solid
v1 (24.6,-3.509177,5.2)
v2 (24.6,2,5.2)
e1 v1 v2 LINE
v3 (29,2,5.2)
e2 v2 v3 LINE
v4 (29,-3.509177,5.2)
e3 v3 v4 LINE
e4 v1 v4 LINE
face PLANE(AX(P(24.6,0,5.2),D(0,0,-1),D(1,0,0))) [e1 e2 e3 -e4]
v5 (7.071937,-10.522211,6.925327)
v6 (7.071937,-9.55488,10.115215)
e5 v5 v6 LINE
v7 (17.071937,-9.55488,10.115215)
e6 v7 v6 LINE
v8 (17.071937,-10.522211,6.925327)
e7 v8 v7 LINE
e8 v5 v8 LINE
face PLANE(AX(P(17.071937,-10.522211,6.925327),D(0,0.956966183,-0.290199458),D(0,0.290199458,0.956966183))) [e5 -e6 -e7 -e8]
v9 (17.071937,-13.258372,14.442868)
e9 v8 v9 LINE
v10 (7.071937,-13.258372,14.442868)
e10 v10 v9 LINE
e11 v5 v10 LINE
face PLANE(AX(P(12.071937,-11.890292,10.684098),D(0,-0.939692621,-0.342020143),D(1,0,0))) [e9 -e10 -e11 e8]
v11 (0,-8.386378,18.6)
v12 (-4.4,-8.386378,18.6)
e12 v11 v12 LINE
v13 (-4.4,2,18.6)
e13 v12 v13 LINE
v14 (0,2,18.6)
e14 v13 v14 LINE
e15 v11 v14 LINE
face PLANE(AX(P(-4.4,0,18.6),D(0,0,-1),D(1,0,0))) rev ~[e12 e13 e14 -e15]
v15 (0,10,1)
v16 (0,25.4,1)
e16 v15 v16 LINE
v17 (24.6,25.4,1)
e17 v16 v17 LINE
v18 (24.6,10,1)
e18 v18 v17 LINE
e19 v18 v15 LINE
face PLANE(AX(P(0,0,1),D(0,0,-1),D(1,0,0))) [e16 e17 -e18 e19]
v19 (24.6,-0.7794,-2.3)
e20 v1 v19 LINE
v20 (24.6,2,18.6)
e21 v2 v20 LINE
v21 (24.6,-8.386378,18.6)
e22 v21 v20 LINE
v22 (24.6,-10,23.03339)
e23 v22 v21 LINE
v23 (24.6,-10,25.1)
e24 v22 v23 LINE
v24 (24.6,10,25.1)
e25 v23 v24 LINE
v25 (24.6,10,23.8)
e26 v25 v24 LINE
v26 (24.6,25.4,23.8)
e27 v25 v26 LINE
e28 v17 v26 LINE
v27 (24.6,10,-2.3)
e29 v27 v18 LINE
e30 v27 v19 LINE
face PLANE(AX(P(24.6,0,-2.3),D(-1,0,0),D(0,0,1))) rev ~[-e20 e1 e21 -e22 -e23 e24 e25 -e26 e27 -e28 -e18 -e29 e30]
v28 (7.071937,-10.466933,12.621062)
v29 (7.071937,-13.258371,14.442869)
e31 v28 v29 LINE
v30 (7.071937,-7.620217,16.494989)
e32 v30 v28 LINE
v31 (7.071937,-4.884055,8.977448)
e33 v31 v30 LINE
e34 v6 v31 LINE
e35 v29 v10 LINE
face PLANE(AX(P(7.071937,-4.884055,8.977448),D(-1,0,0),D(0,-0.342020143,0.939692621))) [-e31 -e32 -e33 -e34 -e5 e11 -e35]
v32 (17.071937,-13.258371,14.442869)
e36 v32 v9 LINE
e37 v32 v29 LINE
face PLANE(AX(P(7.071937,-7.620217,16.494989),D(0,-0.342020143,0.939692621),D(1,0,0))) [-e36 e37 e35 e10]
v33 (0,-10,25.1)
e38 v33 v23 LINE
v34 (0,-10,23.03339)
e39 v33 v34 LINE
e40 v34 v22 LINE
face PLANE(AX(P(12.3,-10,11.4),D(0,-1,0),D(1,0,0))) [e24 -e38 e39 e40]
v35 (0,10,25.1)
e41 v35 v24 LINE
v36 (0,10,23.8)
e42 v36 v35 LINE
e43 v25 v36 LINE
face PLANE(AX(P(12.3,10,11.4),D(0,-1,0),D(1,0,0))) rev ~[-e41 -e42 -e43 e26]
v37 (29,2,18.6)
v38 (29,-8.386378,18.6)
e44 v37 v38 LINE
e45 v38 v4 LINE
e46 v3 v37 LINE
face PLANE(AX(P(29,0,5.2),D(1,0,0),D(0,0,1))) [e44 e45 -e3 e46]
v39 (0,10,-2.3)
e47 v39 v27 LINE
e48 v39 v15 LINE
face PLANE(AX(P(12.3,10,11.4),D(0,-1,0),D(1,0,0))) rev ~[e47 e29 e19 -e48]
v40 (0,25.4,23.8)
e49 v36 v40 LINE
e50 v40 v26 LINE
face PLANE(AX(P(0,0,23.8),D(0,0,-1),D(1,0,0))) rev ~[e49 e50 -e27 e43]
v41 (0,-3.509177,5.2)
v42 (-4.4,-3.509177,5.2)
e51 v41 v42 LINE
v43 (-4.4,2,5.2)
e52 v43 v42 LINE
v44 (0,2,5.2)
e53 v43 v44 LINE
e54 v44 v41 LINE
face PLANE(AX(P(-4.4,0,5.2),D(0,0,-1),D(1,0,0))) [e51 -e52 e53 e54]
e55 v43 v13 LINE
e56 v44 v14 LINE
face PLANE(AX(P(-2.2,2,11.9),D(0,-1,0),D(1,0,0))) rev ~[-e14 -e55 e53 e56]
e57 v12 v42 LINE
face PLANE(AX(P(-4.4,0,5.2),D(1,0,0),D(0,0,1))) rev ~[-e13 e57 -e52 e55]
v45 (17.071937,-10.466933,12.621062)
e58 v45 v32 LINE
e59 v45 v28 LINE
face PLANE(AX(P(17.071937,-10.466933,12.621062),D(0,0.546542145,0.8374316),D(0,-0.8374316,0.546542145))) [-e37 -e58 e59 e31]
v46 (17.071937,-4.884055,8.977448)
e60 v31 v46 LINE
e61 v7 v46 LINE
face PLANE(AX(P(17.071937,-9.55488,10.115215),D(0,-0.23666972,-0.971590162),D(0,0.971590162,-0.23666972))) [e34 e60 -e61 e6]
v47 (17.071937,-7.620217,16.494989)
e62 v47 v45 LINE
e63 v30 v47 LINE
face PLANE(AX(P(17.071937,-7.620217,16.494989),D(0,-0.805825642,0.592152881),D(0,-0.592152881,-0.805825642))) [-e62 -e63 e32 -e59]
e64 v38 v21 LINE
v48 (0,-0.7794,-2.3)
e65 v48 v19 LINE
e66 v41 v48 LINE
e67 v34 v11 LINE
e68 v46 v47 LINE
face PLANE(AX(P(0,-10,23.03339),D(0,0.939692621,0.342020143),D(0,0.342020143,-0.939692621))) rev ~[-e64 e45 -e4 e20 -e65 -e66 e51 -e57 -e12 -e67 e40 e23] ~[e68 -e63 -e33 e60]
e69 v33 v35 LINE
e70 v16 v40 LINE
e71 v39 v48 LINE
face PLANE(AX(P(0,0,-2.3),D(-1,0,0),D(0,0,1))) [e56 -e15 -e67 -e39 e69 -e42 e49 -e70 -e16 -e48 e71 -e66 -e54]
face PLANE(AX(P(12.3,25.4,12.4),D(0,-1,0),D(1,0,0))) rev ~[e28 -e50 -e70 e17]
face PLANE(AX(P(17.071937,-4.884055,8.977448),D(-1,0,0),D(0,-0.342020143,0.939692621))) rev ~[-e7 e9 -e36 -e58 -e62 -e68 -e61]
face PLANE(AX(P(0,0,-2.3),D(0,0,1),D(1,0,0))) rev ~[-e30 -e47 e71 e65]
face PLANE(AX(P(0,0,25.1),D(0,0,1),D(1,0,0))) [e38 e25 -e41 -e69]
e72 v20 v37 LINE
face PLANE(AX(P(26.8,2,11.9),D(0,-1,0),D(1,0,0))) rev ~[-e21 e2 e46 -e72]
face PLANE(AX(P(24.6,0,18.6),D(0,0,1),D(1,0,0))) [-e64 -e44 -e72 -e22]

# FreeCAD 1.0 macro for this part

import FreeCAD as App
import Part
import Sketcher

V = App.Vector
Q = App.Units.Quantity

doc = App.newDocument("Part")
body = doc.addObject("PartDesign::Body", "Body")

sketch1 = doc.addObject("Sketcher::SketchObject", "Sketch")
body.addObject(sketch1)
sketch1.AttachmentSupport = (doc.XZ_Plane, [""])
sketch1.MapMode = "FlatFace"
sketch1.addGeometry([
    Part.LineSegment(V(0, 24, 0), V(0, 1, 0)),
    Part.LineSegment(V(0, 1, 0), V(25, 1, 0)),
    Part.LineSegment(V(25, 1, 0), V(25, 24, 0)),
    Part.LineSegment(V(25, 24, 0), V(0, 24, 0)),
], False)
sketch1.addConstraint([
    Sketcher.Constraint("Coincident", 0, 2, 1, 1),
    Sketcher.Constraint("Coincident", 1, 2, 2, 1),
    Sketcher.Constraint("Coincident", 2, 2, 3, 1),
    Sketcher.Constraint("Coincident", 3, 2, 0, 1),
    Sketcher.Constraint("Vertical", 0),
    Sketcher.Constraint("Horizontal", 1),
    Sketcher.Constraint("Vertical", 2),
    Sketcher.Constraint("Horizontal", 3),
    Sketcher.Constraint("PointOnObject", 0, 2, -2),
    Sketcher.Constraint("DistanceX", 1, 1, 1, 2, 24.6),
    Sketcher.Constraint("DistanceY", 0, 2, 0, 1, 22.8),
    Sketcher.Constraint("DistanceY", -1, 1, 0, 2, 1.0),
])
pad1 = doc.addObject("PartDesign::Pad", "Pad")
body.addObject(pad1)
pad1.Profile = sketch1
pad1.Length = 25.4
pad1.Reversed = True

sketch2 = doc.addObject("Sketcher::SketchObject", "Sketch001")
body.addObject(sketch2)
sketch2.AttachmentSupport = (doc.XZ_Plane, [""])
sketch2.MapMode = "FlatFace"
sketch2.addGeometry([
    Part.LineSegment(V(0, 25, 0), V(0, -2, 0)),
    Part.LineSegment(V(0, -2, 0), V(25, -2, 0)),
    Part.LineSegment(V(25, -2, 0), V(25, 25, 0)),
    Part.LineSegment(V(25, 25, 0), V(0, 25, 0)),
], False)
sketch2.addConstraint([
    Sketcher.Constraint("Coincident", 0, 2, 1, 1),
    Sketcher.Constraint("Coincident", 1, 2, 2, 1),
    Sketcher.Constraint("Coincident", 2, 2, 3, 1),
    Sketcher.Constraint("Coincident", 3, 2, 0, 1),
    Sketcher.Constraint("Vertical", 0),
    Sketcher.Constraint("Horizontal", 1),
    Sketcher.Constraint("Vertical", 2),
    Sketcher.Constraint("Horizontal", 3),
    Sketcher.Constraint("PointOnObject", 0, 2, -2),
    Sketcher.Constraint("DistanceX", 1, 1, 1, 2, 24.6),
    Sketcher.Constraint("DistanceY", 0, 2, 0, 1, 27.4),
    Sketcher.Constraint("DistanceY", 0, 2, -1, 1, 2.3),
])
pad2 = doc.addObject("PartDesign::Pad", "Pad001")
body.addObject(pad2)
pad2.Profile = sketch2
pad2.Type = "TwoLengths"
pad2.Length = 10
pad2.Length2 = 10
pad2.Reversed = True

sketch3 = doc.addObject("Sketcher::SketchObject", "Sketch002")
body.addObject(sketch3)
sketch3.AttachmentSupport = (doc.XZ_Plane, [""])
sketch3.MapMode = "FlatFace"
sketch3.addGeometry([
    Part.LineSegment(V(-4.4, 18.6, 0), V(-4.4, 5.2, 0)),
    Part.LineSegment(V(-4.4, 5.2, 0), V(0, 5.2, 0)),
    Part.LineSegment(V(0, 5.2, 0), V(0, 18.6, 0)),
    Part.LineSegment(V(0, 18.6, 0), V(-4.4, 18.6, 0)),
], False)
sketch3.addConstraint([
    Sketcher.Constraint("Coincident", 0, 2, 1, 1),
    Sketcher.Constraint("Coincident", 1, 2, 2, 1),
    Sketcher.Constraint("Coincident", 2, 2, 3, 1),
    Sketcher.Constraint("Coincident", 3, 2, 0, 1),
    Sketcher.Constraint("Vertical", 0),
    Sketcher.Constraint("Horizontal", 1),
    Sketcher.Constraint("Vertical", 2),
    Sketcher.Constraint("Horizontal", 3),
    Sketcher.Constraint("PointOnObject", 1, 2, -2),
    Sketcher.Constraint("DistanceX", 1, 1, 1, 2, 4.4),
    Sketcher.Constraint("DistanceY", 0, 2, 0, 1, 13.4),
    Sketcher.Constraint("DistanceY", -1, 1, 0, 2, 5.2),
])
pad3 = doc.addObject("PartDesign::Pad", "Pad002")
body.addObject(pad3)
pad3.Profile = sketch3
pad3.Type = "TwoLengths"
pad3.Length = 10
pad3.Length2 = 2

sketch4 = doc.addObject("Sketcher::SketchObject", "Sketch003")
body.addObject(sketch4)
sketch4.AttachmentSupport = (doc.XZ_Plane, [""])
sketch4.MapMode = "FlatFace"
sketch4.addGeometry([
    Part.LineSegment(V(24.6, 18.6, 0), V(24.6, 5.2, 0)),
    Part.LineSegment(V(24.6, 5.2, 0), V(29, 5.2, 0)),
    Part.LineSegment(V(29, 5.2, 0), V(29, 18.6, 0)),
    Part.LineSegment(V(29, 18.6, 0), V(24.6, 18.6, 0)),
], False)
sketch4.addConstraint([
    Sketcher.Constraint("Coincident", 0, 2, 1, 1),
    Sketcher.Constraint("Coincident", 1, 2, 2, 1),
    Sketcher.Constraint("Coincident", 2, 2, 3, 1),
    Sketcher.Constraint("Coincident", 3, 2, 0, 1),
    Sketcher.Constraint("Vertical", 0),
    Sketcher.Constraint("Horizontal", 1),
    Sketcher.Constraint("Vertical", 2),
    Sketcher.Constraint("Horizontal", 3),
    Sketcher.Constraint("DistanceX", 1, 1, 1, 2, 4.4),
    Sketcher.Constraint("DistanceY", 0, 2, 0, 1, 13.4),
    Sketcher.Constraint("DistanceX", -1, 1, 1, 2, 29.0),
    Sketcher.Constraint("DistanceY", -1, 1, 0, 2, 5.2),
])
pad4 = doc.addObject("PartDesign::Pad", "Pad003")
body.addObject(pad4)
pad4.Profile = sketch4
pad4.Type = "TwoLengths"
pad4.Length = 10
pad4.Length2 = 2

sketch5 = doc.addObject("Sketcher::SketchObject", "Sketch004")
body.addObject(sketch5)
sketch5.AttachmentSupport = (doc.YZ_Plane, [""])
sketch5.MapMode = "FlatFace"
sketch5.addGeometry([
    Part.LineSegment(V(-10, -2, 0), V(-1, -2, 0)),
    Part.LineSegment(V(-1, -2, 0), V(-10, 23, 0)),
    Part.LineSegment(V(-10, 23, 0), V(-10, -2, 0)),
], False)
sketch5.addConstraint([
    Sketcher.Constraint("Coincident", 0, 2, 1, 1),
    Sketcher.Constraint("Coincident", 1, 2, 2, 1),
    Sketcher.Constraint("Coincident", 2, 2, 0, 1),
    Sketcher.Constraint("Horizontal", 0),
    Sketcher.Constraint("Vertical", 2),
    Sketcher.Constraint("Angle", 1, Q("110 deg")),
    Sketcher.Constraint("DistanceX", 1, 2, -1, 1, 10.0),
    Sketcher.Constraint("DistanceY", 0, 2, -1, 1, 2.3),
    Sketcher.Constraint("DistanceX", 0, 1, 0, 2, 9.2206),
])
pocket1 = doc.addObject("PartDesign::Pocket", "Pocket")
body.addObject(pocket1)
pocket1.Profile = sketch5
pocket1.Type = "ThroughAll"
pocket1.Midplane = True

sketch6 = doc.addObject("Sketcher::SketchObject", "Sketch005")
body.addObject(sketch6)
sketch6.Placement = App.Placement(V(0, -1.427433, -0.519543), App.Rotation(V(1, 0, 0), V(0, -0.342020143, 0.939692621), V(0, -0.939692621, -0.342020143), "ZXY"))
sketch6.addGeometry([
    Part.LineSegment(V(7, 18, 0), V(7, 10, 0)),
    Part.LineSegment(V(7, 10, 0), V(17, 10, 0)),
    Part.LineSegment(V(17, 10, 0), V(17, 18, 0)),
    Part.LineSegment(V(17, 18, 0), V(7, 18, 0)),
], False)
sketch6.addConstraint([
    Sketcher.Constraint("Coincident", 0, 2, 1, 1),
    Sketcher.Constraint("Coincident", 1, 2, 2, 1),
    Sketcher.Constraint("Coincident", 2, 2, 3, 1),
    Sketcher.Constraint("Coincident", 3, 2, 0, 1),
    Sketcher.Constraint("Vertical", 0),
    Sketcher.Constraint("Horizontal", 1),
    Sketcher.Constraint("Vertical", 2),
    Sketcher.Constraint("Horizontal", 3),
    Sketcher.Constraint("DistanceX", 1, 1, 1, 2, 10.0),
    Sketcher.Constraint("DistanceY", 0, 2, 0, 1, 8.0),
    Sketcher.Constraint("DistanceX", -1, 1, 0, 2, 7.071937),
    Sketcher.Constraint("DistanceY", -1, 1, 0, 2, 10.106487),
])
pad5 = doc.addObject("PartDesign::Pad", "Pad004")
body.addObject(pad5)
pad5.Profile = sketch6
pad5.Length = 6

sketch7 = doc.addObject("Sketcher::SketchObject", "Sketch006")
body.addObject(sketch7)
sketch7.AttachmentSupport = (doc.YZ_Plane, [""])
sketch7.MapMode = "FlatFace"
sketch7.AttachmentOffset = App.Placement(V(0, 0, 17.071937), App.Rotation())
sketch7.addGeometry([
    Part.LineSegment(V(-4.9, 9, 0), V(-9.6, 10.1, 0)),
    Part.LineSegment(V(-9.6, 10.1, 0), V(-10.5, 6.9, 0)),
    Part.LineSegment(V(-10.5, 6.9, 0), V(-4.9, 9, 0)),
    Part.LineSegment(V(-7.6, 16.5, 0), V(-13.3, 14.4, 0)),
    Part.LineSegment(V(-13.3, 14.4, 0), V(-10.5, 12.6, 0)),
    Part.LineSegment(V(-10.5, 12.6, 0), V(-7.6, 16.5, 0)),
], False)
sketch7.addConstraint([
    Sketcher.Constraint("Coincident", 0, 2, 1, 1),
    Sketcher.Constraint("Coincident", 1, 2, 2, 1),
    Sketcher.Constraint("Coincident", 2, 2, 0, 1),
    Sketcher.Constraint("Coincident", 3, 2, 4, 1),
    Sketcher.Constraint("Coincident", 4, 2, 5, 1),
    Sketcher.Constraint("Coincident", 5, 2, 3, 1),
    Sketcher.Constraint("Parallel", 2, 3),
    Sketcher.Constraint("Equal", 2, 3),
    Sketcher.Constraint("Equal", 1, 4),
    Sketcher.Constraint("Equal", 0, 5),
    Sketcher.Constraint("Angle", 2, Q("20 deg")),
    Sketcher.Constraint("Distance", 2, 6.0),
    Sketcher.Constraint("Distance", 0, 4.807402),
    Sketcher.Constraint("DistanceX", 0, 2, -1, 1, 9.55488),
    Sketcher.Constraint("DistanceX", 1, 2, -1, 1, 10.522211),
    Sketcher.Constraint("DistanceY", -1, 1, 2, 2, 8.977448),
    Sketcher.Constraint("DistanceX", 3, 2, -1, 1, 13.258371),
    Sketcher.Constraint("DistanceY", -1, 1, 3, 2, 14.442869),
])
pocket2 = doc.addObject("PartDesign::Pocket", "Pocket001")
body.addObject(pocket2)
pocket2.Profile = sketch7
pocket2.Length = 10

doc.recompute()
